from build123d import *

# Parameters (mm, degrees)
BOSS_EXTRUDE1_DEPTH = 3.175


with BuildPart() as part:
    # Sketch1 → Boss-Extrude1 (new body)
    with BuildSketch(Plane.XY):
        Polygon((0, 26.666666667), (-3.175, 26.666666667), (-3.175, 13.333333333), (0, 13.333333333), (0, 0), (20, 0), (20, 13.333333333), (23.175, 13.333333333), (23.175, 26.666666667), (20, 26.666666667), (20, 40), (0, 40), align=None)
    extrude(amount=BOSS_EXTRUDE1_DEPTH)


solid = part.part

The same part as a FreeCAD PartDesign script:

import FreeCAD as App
import Part
import Sketcher

V = App.Vector
Q = App.Units.Quantity


def add_polygon(sketch, points):
    """Adds a closed chain of lines whose ends are joined by coincident constraints."""
    first, n = sketch.GeometryCount, len(points)
    for a, b in zip(points, points[1:] + points[:1]):
        sketch.addGeometry(Part.LineSegment(App.Vector(*a, 0), App.Vector(*b, 0)), False)
    for i in range(n):
        sketch.addConstraint(Sketcher.Constraint("Coincident", first + i, 2, first + (i + 1) % n, 1))

doc = App.newDocument("Part")
params = doc.addObject("Spreadsheet::Sheet", "Params")
for row, (alias, value) in enumerate([
    ("sketch1_width", "20 mm"),
    ("pad1_length", "3.175 mm"),
], start=1):
    params.set(f"A{row}", alias)
    params.set(f"B{row}", "=" + value)
    params.setAlias(f"B{row}", alias)

body = doc.addObject("PartDesign::Body", "Body")

sketch1 = body.newObject("Sketcher::SketchObject", "Sketch")
sketch1.AttachmentSupport = (doc.getObject("XY_Plane"), [""])
sketch1.MapMode = "FlatFace"
add_polygon(sketch1, [(0, 26.666667), (-3.175, 26.666667), (-3.175, 13.333333), (0, 13.333333), (0, 0), (20, 0), (20, 13.333333), (23.175, 13.333333), (23.175, 26.666667), (20, 26.666667), (20, 40), (0, 40)])
sketch1.addConstraint([
    Sketcher.Constraint("Horizontal", 0),
    Sketcher.Constraint("Vertical", 1),
    Sketcher.Constraint("Horizontal", 2),
    Sketcher.Constraint("Vertical", 3),
    Sketcher.Constraint("Horizontal", 4),
    Sketcher.Constraint("Vertical", 5),
    Sketcher.Constraint("Horizontal", 6),
    Sketcher.Constraint("Vertical", 7),
    Sketcher.Constraint("Horizontal", 8),
    Sketcher.Constraint("Vertical", 9),
    Sketcher.Constraint("Horizontal", 10),
    Sketcher.Constraint("Vertical", 11),
    Sketcher.Constraint("Coincident", 3, 2, -1, 1),
    Sketcher.Constraint("PointOnObject", 10, 2, -2),
    Sketcher.Constraint("Horizontal", 2, 2, 5, 2),
    Sketcher.Constraint("Horizontal", 0, 2, 7, 2),
    Sketcher.Constraint("Vertical", 5, 2, 8, 2),
    Sketcher.Constraint("Equal", 2, 6),
    Sketcher.Constraint("Equal", 1, 3),
    Sketcher.Constraint("Equal", 7, 9),
    Sketcher.Constraint("DistanceX", 4, 1, 4, 2, Q("20 mm")),
    Sketcher.Constraint("DistanceY", -1, 1, 9, 2, Q("40 mm")),
    Sketcher.Constraint("DistanceX", 0, 2, 0, 1, Q("3.175 mm")),
])
sketch1.setExpression("Constraints[32]", "Params.sketch1_width")
pad1 = body.newObject("PartDesign::Pad", "Pad")
pad1.Profile = sketch1
pad1.setExpression("Length", "Params.pad1_length")

doc.recompute()
